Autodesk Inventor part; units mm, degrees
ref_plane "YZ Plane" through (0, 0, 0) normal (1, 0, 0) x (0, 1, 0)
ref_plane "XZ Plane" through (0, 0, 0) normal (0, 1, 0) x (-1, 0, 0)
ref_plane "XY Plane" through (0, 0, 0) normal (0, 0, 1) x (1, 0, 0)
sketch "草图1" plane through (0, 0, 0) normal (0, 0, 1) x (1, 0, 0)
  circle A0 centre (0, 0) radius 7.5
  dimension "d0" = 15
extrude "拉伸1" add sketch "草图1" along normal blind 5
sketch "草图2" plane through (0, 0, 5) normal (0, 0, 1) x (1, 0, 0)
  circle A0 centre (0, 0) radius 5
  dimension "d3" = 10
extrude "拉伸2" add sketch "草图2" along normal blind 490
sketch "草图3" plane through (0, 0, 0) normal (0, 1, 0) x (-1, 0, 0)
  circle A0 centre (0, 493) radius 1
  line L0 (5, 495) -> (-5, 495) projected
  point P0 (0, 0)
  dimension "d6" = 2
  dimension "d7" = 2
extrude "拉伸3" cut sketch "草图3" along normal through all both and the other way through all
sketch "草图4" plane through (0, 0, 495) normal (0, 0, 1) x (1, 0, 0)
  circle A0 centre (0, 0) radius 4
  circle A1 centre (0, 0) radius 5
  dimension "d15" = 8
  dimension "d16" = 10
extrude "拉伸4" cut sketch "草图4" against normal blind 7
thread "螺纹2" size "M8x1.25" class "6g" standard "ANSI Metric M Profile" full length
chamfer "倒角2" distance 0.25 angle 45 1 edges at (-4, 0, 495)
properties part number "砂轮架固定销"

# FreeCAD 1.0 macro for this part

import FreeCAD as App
import Part
import Sketcher

V = App.Vector


def edges_at(feature, points):
    """Names of the edges that pass closest to the given points."""
    edges = feature.Shape.Edges
    near = lambda p: min(range(len(edges)), key=lambda i: edges[i].distToShape(Part.Vertex(*p))[0])
    return sorted({f"Edge{near(p) + 1}" for p in points})

doc = App.newDocument("Part")
params = doc.addObject("Spreadsheet::Sheet", "Params")
for row, (alias, value) in enumerate([
    ("sketch1_diameter", "15 mm"),
    ("pad1_length", "5 mm"),
    ("sketch2_diameter", "10 mm"),
    ("pad2_length", "490 mm"),
    ("sketch3_diameter", "2 mm"),
    ("sketch4_diameter", "10 mm"),
    ("sketch4_diameter2", "8 mm"),
    ("pocket2_length", "7 mm"),
    ("chamfer_size", "0.25 mm"),
], start=1):
    params.set(f"A{row}", alias)
    params.set(f"B{row}", "=" + value)
    params.setAlias(f"B{row}", alias)

body = doc.addObject("PartDesign::Body", "Body")

# Sketch on XY plane
sketch1 = body.newObject("Sketcher::SketchObject", "Sketch")
sketch1.AttachmentSupport = (doc.getObject("XY_Plane"), [""])
sketch1.MapMode = "FlatFace"
sketch1.addGeometry(Part.Circle(V(0, 0, 0), V(0, 0, 1), 8), False)
sketch1.addConstraint([
    Sketcher.Constraint("Coincident", 0, 3, -1, 1),
    Sketcher.Constraint("Diameter", 0, 15.0),
])
sketch1.setExpression("Constraints[1]", "Params.sketch1_diameter")
pad1 = body.newObject("PartDesign::Pad", "Pad")
pad1.Profile = sketch1
pad1.setExpression("Length", "Params.pad1_length")

# Sketch on XY plane
sketch2 = body.newObject("Sketcher::SketchObject", "Sketch001")
sketch2.AttachmentSupport = (doc.getObject("XY_Plane"), [""])
sketch2.MapMode = "FlatFace"
sketch2.AttachmentOffset = App.Placement(V(0, 0, 5), App.Rotation())
sketch2.addGeometry(Part.Circle(V(0, 0, 0), V(0, 0, 1), 5), False)
sketch2.addConstraint([
    Sketcher.Constraint("Coincident", 0, 3, -1, 1),
    Sketcher.Constraint("Diameter", 0, 10.0),
])
sketch2.setExpression("Constraints[1]", "Params.sketch2_diameter")
pad2 = body.newObject("PartDesign::Pad", "Pad001")
pad2.Profile = sketch2
pad2.setExpression("Length", "Params.pad2_length")

# Sketch on XZ plane
sketch3 = body.newObject("Sketcher::SketchObject", "Sketch002")
sketch3.AttachmentSupport = (doc.getObject("XZ_Plane"), [""])
sketch3.MapMode = "FlatFace"
sketch3.addGeometry(Part.Circle(V(0, 493, 0), V(0, 0, 1), 1), False)
sketch3.addConstraint([
    Sketcher.Constraint("PointOnObject", 0, 3, -2),
    Sketcher.Constraint("Diameter", 0, 2.0),
    Sketcher.Constraint("DistanceY", -1, 1, 0, 3, 493.0),
])
sketch3.setExpression("Constraints[1]", "Params.sketch3_diameter")
pocket1 = body.newObject("PartDesign::Pocket", "Pocket")
pocket1.Profile = sketch3
pocket1.Type = "ThroughAll"
pocket1.Midplane = True

# Sketch on XY plane
sketch4 = body.newObject("Sketcher::SketchObject", "Sketch003")
sketch4.AttachmentSupport = (doc.getObject("XY_Plane"), [""])
sketch4.MapMode = "FlatFace"
sketch4.AttachmentOffset = App.Placement(V(0, 0, 495), App.Rotation())
sketch4.addGeometry([
    Part.Circle(V(0, 0, 0), V(0, 0, 1), 5),
    Part.Circle(V(0, 0, 0), V(0, 0, 1), 4),
], False)
sketch4.addConstraint([
    Sketcher.Constraint("Coincident", 0, 3, -1, 1),
    Sketcher.Constraint("Coincident", 1, 3, -1, 1),
    Sketcher.Constraint("Diameter", 0, 10.0),
    Sketcher.Constraint("Diameter", 1, 8.0),
])
sketch4.setExpression("Constraints[2]", "Params.sketch4_diameter")
sketch4.setExpression("Constraints[3]", "Params.sketch4_diameter2")
pocket2 = body.newObject("PartDesign::Pocket", "Pocket001")
pocket2.Profile = sketch4
pocket2.setExpression("Length", "Params.pocket2_length")
doc.recompute()

chamfer = body.newObject("PartDesign::Chamfer", "Chamfer")
chamfer.Base = (pocket2, edges_at(pocket2, [(-4, 0, 495)]))
chamfer.setExpression("Size", "Params.chamfer_size")

doc.recompute()
